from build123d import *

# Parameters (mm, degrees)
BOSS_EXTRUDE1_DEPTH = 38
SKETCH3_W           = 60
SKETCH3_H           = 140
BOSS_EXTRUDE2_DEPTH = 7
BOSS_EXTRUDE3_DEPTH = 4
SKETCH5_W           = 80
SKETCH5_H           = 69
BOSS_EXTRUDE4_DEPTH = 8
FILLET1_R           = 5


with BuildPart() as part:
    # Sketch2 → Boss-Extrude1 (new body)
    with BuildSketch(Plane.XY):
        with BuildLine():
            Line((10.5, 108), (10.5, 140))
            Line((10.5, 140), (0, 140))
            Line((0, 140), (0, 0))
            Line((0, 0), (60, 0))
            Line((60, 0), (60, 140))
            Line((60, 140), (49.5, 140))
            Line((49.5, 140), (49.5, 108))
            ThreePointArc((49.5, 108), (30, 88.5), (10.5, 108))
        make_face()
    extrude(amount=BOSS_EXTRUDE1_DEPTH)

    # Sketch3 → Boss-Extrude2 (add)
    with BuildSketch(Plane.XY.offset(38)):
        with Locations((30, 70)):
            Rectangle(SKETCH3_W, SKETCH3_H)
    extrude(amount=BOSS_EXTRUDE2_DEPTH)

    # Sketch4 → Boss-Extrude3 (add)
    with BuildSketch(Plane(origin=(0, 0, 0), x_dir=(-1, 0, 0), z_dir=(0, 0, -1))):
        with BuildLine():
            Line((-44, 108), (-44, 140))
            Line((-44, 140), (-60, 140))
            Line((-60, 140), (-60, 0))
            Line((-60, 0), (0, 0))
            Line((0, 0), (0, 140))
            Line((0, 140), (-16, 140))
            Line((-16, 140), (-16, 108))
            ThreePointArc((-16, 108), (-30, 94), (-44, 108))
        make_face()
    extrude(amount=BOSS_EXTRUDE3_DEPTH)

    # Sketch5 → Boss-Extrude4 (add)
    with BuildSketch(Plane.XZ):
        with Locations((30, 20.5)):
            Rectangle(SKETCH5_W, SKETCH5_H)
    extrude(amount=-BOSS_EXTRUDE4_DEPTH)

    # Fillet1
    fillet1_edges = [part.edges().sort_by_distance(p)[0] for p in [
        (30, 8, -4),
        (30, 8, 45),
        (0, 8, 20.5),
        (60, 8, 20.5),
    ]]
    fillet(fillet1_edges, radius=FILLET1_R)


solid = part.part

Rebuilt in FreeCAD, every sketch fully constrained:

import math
import FreeCAD as App
import Part
import Sketcher

V = App.Vector
Q = App.Units.Quantity


def edges_at(feature, points):
    """Names of the edges that pass closest to the given points."""
    edges = feature.Shape.Edges
    near = lambda p: min(range(len(edges)), key=lambda i: edges[i].distToShape(Part.Vertex(*p))[0])
    return sorted({f"Edge{near(p) + 1}" for p in points})


def add_polygon(sketch, points):
    """Adds a closed chain of lines whose ends are joined by coincident constraints."""
    first, n = sketch.GeometryCount, len(points)
    for a, b in zip(points, points[1:] + points[:1]):
        sketch.addGeometry(Part.LineSegment(App.Vector(*a, 0), App.Vector(*b, 0)), False)
    for i in range(n):
        sketch.addConstraint(Sketcher.Constraint("Coincident", first + i, 2, first + (i + 1) % n, 1))

doc = App.newDocument("Part")
body = doc.addObject("PartDesign::Body", "Body")

# Sketch on XY plane
sketch1 = body.newObject("Sketcher::SketchObject", "Sketch")
sketch1.AttachmentSupport = (doc.getObject("XY_Plane"), [""])
sketch1.MapMode = "FlatFace"
sketch1.addGeometry([
    Part.LineSegment(V(10.5, 108, 0), V(10.5, 140, 0)),  # 0
    Part.LineSegment(V(10.5, 140, 0), V(0, 140, 0)),  # 1
    Part.LineSegment(V(0, 140, 0), V(0, 0, 0)),  # 2
    Part.LineSegment(V(0, 0, 0), V(60, 0, 0)),  # 3
    Part.LineSegment(V(60, 0, 0), V(60, 140, 0)),  # 4
    Part.LineSegment(V(60, 140, 0), V(49.5, 140, 0)),  # 5
    Part.LineSegment(V(49.5, 140, 0), V(49.5, 108, 0)),  # 6
    Part.ArcOfCircle(Part.Circle(V(30, 108, 0), V(0, 0, 1), 19.5), math.radians(180), math.radians(360)),  # 7
], False)
sketch1.addConstraint([
    Sketcher.Constraint("Coincident", 0, 2, 1, 1),
    Sketcher.Constraint("Coincident", 1, 2, 2, 1),
    Sketcher.Constraint("Coincident", 2, 2, 3, 1),
    Sketcher.Constraint("Coincident", 3, 2, 4, 1),
    Sketcher.Constraint("Coincident", 4, 2, 5, 1),
    Sketcher.Constraint("Coincident", 5, 2, 6, 1),
    Sketcher.Constraint("Tangent", 6, 2, 7, 2),
    Sketcher.Constraint("Tangent", 7, 1, 0, 1),
    Sketcher.Constraint("Vertical", 0),
    Sketcher.Constraint("Horizontal", 1),
    Sketcher.Constraint("Vertical", 2),
    Sketcher.Constraint("Horizontal", 3),
    Sketcher.Constraint("Vertical", 4),
    Sketcher.Constraint("Horizontal", 5),
    Sketcher.Constraint("Vertical", 6),
    Sketcher.Constraint("Coincident", 2, 2, -1, 1),
    Sketcher.Constraint("Horizontal", 1, 2, 4, 2),
    Sketcher.Constraint("Equal", 1, 5),
    Sketcher.Constraint("Radius", 7, Q("19.5 mm")),
    Sketcher.Constraint("DistanceX", 3, 1, 3, 2, Q("60 mm")),
    Sketcher.Constraint("DistanceY", 0, 1, 0, 2, Q("32 mm")),
    Sketcher.Constraint("DistanceY", 2, 2, 2, 1, Q("140 mm")),
])
pad1 = body.newObject("PartDesign::Pad", "Pad")
pad1.Profile = sketch1
pad1.Length = 38

# Sketch on XY plane
sketch2 = body.newObject("Sketcher::SketchObject", "Sketch001")
sketch2.AttachmentSupport = (doc.getObject("XY_Plane"), [""])
sketch2.MapMode = "FlatFace"
sketch2.AttachmentOffset = App.Placement(V(0, 0, 38), App.Rotation())
add_polygon(sketch2, [(0, 140), (0, 0), (60, 0), (60, 140)])  # lines 0-3
sketch2.addConstraint([
    Sketcher.Constraint("Vertical", 0),
    Sketcher.Constraint("Horizontal", 1),
    Sketcher.Constraint("Vertical", 2),
    Sketcher.Constraint("Horizontal", 3),
    Sketcher.Constraint("Coincident", 0, 2, -1, 1),
    Sketcher.Constraint("DistanceX", 1, 1, 1, 2, Q("60 mm")),
    Sketcher.Constraint("DistanceY", 0, 2, 0, 1, Q("140 mm")),
])
pad2 = body.newObject("PartDesign::Pad", "Pad001")
pad2.Profile = sketch2
pad2.Length = 7

# Sketch on XY plane
sketch3 = body.newObject("Sketcher::SketchObject", "Sketch002")
sketch3.AttachmentSupport = (doc.getObject("XY_Plane"), [""])
sketch3.MapMode = "FlatFace"
sketch3.addGeometry([
    Part.LineSegment(V(44, 108, 0), V(44, 140, 0)),  # 0
    Part.LineSegment(V(44, 140, 0), V(60, 140, 0)),  # 1
    Part.LineSegment(V(60, 140, 0), V(60, 0, 0)),  # 2
    Part.LineSegment(V(60, 0, 0), V(0, 0, 0)),  # 3
    Part.LineSegment(V(0, 0, 0), V(0, 140, 0)),  # 4
    Part.LineSegment(V(0, 140, 0), V(16, 140, 0)),  # 5
    Part.LineSegment(V(16, 140, 0), V(16, 108, 0)),  # 6
    Part.ArcOfCircle(Part.Circle(V(30, 108, 0), V(0, 0, 1), 14), math.radians(180), math.radians(360)),  # 7
], False)
sketch3.addConstraint([
    Sketcher.Constraint("Coincident", 0, 2, 1, 1),
    Sketcher.Constraint("Coincident", 1, 2, 2, 1),
    Sketcher.Constraint("Coincident", 2, 2, 3, 1),
    Sketcher.Constraint("Coincident", 3, 2, 4, 1),
    Sketcher.Constraint("Coincident", 4, 2, 5, 1),
    Sketcher.Constraint("Coincident", 5, 2, 6, 1),
    Sketcher.Constraint("Tangent", 6, 2, 7, 1),
    Sketcher.Constraint("Tangent", 7, 2, 0, 1),
    Sketcher.Constraint("Vertical", 0),
    Sketcher.Constraint("Horizontal", 1),
    Sketcher.Constraint("Vertical", 2),
    Sketcher.Constraint("Horizontal", 3),
    Sketcher.Constraint("Vertical", 4),
    Sketcher.Constraint("Horizontal", 5),
    Sketcher.Constraint("Vertical", 6),
    Sketcher.Constraint("Coincident", 3, 2, -1, 1),
    Sketcher.Constraint("Horizontal", 1, 2, 4, 2),
    Sketcher.Constraint("Equal", 1, 5),
    Sketcher.Constraint("Radius", 7, Q("14 mm")),
    Sketcher.Constraint("DistanceX", 1, 1, 1, 2, Q("16 mm")),
    Sketcher.Constraint("DistanceY", 0, 1, 0, 2, Q("32 mm")),
    Sketcher.Constraint("DistanceY", 2, 2, 2, 1, Q("140 mm")),
])
pad3 = body.newObject("PartDesign::Pad", "Pad002")
pad3.Profile = sketch3
pad3.Length = 4
pad3.Reversed = True

# Sketch on XZ plane
sketch4 = body.newObject("Sketcher::SketchObject", "Sketch003")
sketch4.AttachmentSupport = (doc.getObject("XZ_Plane"), [""])
sketch4.MapMode = "FlatFace"
add_polygon(sketch4, [(-10, 55), (-10, -14), (70, -14), (70, 55)])  # lines 0-3
sketch4.addConstraint([
    Sketcher.Constraint("Vertical", 0),
    Sketcher.Constraint("Horizontal", 1),
    Sketcher.Constraint("Vertical", 2),
    Sketcher.Constraint("Horizontal", 3),
    Sketcher.Constraint("DistanceX", 1, 1, 1, 2, Q("80 mm")),
    Sketcher.Constraint("DistanceY", 0, 2, 0, 1, Q("69 mm")),
    Sketcher.Constraint("DistanceX", 0, 2, -1, 1, Q("10 mm")),
    Sketcher.Constraint("DistanceY", 0, 2, -1, 1, Q("14 mm")),
])
pad4 = body.newObject("PartDesign::Pad", "Pad003")
pad4.Profile = sketch4
pad4.Length = 8
pad4.Reversed = True
doc.recompute()

fillet = body.newObject("PartDesign::Fillet", "Fillet")
fillet.Base = (pad4, edges_at(pad4, [
    (30, 8, -4),
    (30, 8, 45),
    (0, 8, 20.5),
    (60, 8, 20.5),
]))
fillet.Radius = 5

doc.recompute()
